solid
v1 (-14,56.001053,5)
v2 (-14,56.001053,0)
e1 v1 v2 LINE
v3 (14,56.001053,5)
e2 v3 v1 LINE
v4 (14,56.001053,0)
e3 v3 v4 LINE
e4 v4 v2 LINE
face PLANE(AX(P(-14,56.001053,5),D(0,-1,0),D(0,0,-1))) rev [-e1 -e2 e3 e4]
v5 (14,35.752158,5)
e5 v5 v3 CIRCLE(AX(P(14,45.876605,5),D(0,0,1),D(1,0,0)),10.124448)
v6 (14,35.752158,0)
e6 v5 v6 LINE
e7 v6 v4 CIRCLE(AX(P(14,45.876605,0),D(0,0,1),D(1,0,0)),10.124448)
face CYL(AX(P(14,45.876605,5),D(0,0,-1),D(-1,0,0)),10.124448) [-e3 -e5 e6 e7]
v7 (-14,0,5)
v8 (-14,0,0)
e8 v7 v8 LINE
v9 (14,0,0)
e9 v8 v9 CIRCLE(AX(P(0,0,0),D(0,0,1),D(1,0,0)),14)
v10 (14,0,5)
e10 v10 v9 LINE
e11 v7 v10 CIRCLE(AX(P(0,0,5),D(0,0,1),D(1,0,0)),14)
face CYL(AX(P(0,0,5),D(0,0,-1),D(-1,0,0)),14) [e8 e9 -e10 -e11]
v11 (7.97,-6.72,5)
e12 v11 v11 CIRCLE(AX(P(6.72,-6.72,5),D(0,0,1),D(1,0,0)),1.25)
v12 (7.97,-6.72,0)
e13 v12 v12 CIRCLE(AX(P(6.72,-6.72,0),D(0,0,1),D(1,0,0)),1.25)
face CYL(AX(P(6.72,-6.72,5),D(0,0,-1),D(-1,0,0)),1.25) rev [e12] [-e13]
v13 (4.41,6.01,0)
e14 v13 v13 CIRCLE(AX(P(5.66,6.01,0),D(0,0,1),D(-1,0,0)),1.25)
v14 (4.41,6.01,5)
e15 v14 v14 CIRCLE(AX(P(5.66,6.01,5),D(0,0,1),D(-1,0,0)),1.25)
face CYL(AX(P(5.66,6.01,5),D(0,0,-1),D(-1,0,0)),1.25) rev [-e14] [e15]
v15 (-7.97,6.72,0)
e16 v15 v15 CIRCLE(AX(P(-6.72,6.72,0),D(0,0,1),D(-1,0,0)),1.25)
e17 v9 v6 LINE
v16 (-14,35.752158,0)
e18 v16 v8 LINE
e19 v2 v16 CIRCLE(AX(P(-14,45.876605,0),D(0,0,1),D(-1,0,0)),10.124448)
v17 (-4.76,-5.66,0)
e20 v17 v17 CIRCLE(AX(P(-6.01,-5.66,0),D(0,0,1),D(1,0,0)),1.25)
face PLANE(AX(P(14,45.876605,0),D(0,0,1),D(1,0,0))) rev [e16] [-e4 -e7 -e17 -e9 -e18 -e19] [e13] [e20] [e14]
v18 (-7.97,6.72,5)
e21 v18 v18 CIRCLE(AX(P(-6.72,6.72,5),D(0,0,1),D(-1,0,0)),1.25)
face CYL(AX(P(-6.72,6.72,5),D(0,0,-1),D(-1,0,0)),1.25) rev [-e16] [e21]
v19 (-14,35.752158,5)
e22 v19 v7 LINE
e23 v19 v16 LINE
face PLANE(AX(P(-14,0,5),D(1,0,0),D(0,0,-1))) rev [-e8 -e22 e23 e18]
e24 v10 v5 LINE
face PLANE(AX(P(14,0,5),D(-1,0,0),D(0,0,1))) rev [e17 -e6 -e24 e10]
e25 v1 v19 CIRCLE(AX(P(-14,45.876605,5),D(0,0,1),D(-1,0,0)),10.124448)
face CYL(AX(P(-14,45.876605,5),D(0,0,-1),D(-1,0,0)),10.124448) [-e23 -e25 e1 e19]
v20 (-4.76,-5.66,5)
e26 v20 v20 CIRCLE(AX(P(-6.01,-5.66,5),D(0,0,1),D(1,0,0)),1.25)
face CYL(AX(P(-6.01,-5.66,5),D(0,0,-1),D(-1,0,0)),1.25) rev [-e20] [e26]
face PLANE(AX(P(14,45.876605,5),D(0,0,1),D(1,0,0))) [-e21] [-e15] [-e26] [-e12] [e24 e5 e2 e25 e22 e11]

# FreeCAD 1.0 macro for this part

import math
import FreeCAD as App
import Part
import Sketcher

V = App.Vector

doc = App.newDocument("Part")
body = doc.addObject("PartDesign::Body", "Body")

sketch1 = body.newObject("Sketcher::SketchObject", "Sketch")
sketch1.AttachmentSupport = (doc.getObject("XY_Plane"), [""])
sketch1.MapMode = "FlatFace"
sketch1.addGeometry(Part.LineSegment(V(-14, 35.8, 0), V(-14, 0, 0)), False)
sketch1.addGeometry(Part.ArcOfCircle(Part.Circle(V(0, 0, 0), V(0, 0, 1), 14), math.radians(180), math.radians(360)), False)
sketch1.addGeometry(Part.LineSegment(V(14, 0, 0), V(14, 35.8, 0)), False)
sketch1.addGeometry(Part.ArcOfCircle(Part.Circle(V(14, 45.9, 0), V(0, 0, 1), 10.1), math.radians(-90), math.radians(90)), False)
sketch1.addGeometry(Part.LineSegment(V(14, 56, 0), V(-14, 56, 0)), False)
sketch1.addGeometry(Part.ArcOfCircle(Part.Circle(V(-14, 45.9, 0), V(0, 0, 1), 10.1), math.radians(90), math.radians(270)), False)
sketch1.addGeometry(Part.Circle(V(6.7, -6.7, 0), V(0, 0, 1), 1.2), False)
sketch1.addGeometry(Part.Circle(V(-6, -5.7, 0), V(0, 0, 1), 1.2), False)
sketch1.addGeometry(Part.Circle(V(5.7, 6, 0), V(0, 0, 1), 1.2), False)
sketch1.addGeometry(Part.Circle(V(-6.7, 6.7, 0), V(0, 0, 1), 1.2), False)
sketch1.addConstraint(Sketcher.Constraint("Tangent", 0, 2, 1, 1))
sketch1.addConstraint(Sketcher.Constraint("Tangent", 1, 2, 2, 1))
sketch1.addConstraint(Sketcher.Constraint("Coincident", 2, 2, 3, 1))
sketch1.addConstraint(Sketcher.Constraint("Tangent", 3, 2, 4, 1))
sketch1.addConstraint(Sketcher.Constraint("Tangent", 4, 2, 5, 1))
sketch1.addConstraint(Sketcher.Constraint("Coincident", 5, 2, 0, 1))
sketch1.addConstraint(Sketcher.Constraint("Vertical", 0))
sketch1.addConstraint(Sketcher.Constraint("Vertical", 2))
sketch1.addConstraint(Sketcher.Constraint("Horizontal", 4))
sketch1.addConstraint(Sketcher.Constraint("Coincident", 1, 3, -1, 1))
sketch1.addConstraint(Sketcher.Constraint("Equal", 3, 5))
sketch1.addConstraint(Sketcher.Constraint("Equal", 6, 7))
sketch1.addConstraint(Sketcher.Constraint("Equal", 7, 8))
sketch1.addConstraint(Sketcher.Constraint("Equal", 8, 9))
sketch1.addConstraint(Sketcher.Constraint("Symmetric", 6, 3, 9, 3, -1, 1))
sketch1.addConstraint(Sketcher.Constraint("Vertical", 5, 3, 0, 2))
sketch1.addConstraint(Sketcher.Constraint("Vertical", 3, 3, 1, 2))
sketch1.addConstraint(Sketcher.Constraint("Radius", 1, 14.0))
sketch1.addConstraint(Sketcher.Constraint("Diameter", 6, 2.5))
sketch1.addConstraint(Sketcher.Constraint("DistanceX", -1, 1, 6, 3, 6.72))
sketch1.addConstraint(Sketcher.Constraint("DistanceY", 6, 3, -1, 1, 6.72))
sketch1.addConstraint(Sketcher.Constraint("DistanceX", 7, 3, -1, 1, 6.01))
sketch1.addConstraint(Sketcher.Constraint("DistanceY", 7, 3, -1, 1, 5.66))
sketch1.addConstraint(Sketcher.Constraint("DistanceX", -1, 1, 8, 3, 5.66))
sketch1.addConstraint(Sketcher.Constraint("DistanceY", -1, 1, 8, 3, 6.01))
sketch1.addConstraint(Sketcher.Constraint("Radius", 3, 10.124448))
sketch1.addConstraint(Sketcher.Constraint("DistanceY", 0, 2, 0, 1, 35.752158))
pad1 = body.newObject("PartDesign::Pad", "Pad")
pad1.Profile = sketch1
pad1.Length = 5

doc.recompute()
